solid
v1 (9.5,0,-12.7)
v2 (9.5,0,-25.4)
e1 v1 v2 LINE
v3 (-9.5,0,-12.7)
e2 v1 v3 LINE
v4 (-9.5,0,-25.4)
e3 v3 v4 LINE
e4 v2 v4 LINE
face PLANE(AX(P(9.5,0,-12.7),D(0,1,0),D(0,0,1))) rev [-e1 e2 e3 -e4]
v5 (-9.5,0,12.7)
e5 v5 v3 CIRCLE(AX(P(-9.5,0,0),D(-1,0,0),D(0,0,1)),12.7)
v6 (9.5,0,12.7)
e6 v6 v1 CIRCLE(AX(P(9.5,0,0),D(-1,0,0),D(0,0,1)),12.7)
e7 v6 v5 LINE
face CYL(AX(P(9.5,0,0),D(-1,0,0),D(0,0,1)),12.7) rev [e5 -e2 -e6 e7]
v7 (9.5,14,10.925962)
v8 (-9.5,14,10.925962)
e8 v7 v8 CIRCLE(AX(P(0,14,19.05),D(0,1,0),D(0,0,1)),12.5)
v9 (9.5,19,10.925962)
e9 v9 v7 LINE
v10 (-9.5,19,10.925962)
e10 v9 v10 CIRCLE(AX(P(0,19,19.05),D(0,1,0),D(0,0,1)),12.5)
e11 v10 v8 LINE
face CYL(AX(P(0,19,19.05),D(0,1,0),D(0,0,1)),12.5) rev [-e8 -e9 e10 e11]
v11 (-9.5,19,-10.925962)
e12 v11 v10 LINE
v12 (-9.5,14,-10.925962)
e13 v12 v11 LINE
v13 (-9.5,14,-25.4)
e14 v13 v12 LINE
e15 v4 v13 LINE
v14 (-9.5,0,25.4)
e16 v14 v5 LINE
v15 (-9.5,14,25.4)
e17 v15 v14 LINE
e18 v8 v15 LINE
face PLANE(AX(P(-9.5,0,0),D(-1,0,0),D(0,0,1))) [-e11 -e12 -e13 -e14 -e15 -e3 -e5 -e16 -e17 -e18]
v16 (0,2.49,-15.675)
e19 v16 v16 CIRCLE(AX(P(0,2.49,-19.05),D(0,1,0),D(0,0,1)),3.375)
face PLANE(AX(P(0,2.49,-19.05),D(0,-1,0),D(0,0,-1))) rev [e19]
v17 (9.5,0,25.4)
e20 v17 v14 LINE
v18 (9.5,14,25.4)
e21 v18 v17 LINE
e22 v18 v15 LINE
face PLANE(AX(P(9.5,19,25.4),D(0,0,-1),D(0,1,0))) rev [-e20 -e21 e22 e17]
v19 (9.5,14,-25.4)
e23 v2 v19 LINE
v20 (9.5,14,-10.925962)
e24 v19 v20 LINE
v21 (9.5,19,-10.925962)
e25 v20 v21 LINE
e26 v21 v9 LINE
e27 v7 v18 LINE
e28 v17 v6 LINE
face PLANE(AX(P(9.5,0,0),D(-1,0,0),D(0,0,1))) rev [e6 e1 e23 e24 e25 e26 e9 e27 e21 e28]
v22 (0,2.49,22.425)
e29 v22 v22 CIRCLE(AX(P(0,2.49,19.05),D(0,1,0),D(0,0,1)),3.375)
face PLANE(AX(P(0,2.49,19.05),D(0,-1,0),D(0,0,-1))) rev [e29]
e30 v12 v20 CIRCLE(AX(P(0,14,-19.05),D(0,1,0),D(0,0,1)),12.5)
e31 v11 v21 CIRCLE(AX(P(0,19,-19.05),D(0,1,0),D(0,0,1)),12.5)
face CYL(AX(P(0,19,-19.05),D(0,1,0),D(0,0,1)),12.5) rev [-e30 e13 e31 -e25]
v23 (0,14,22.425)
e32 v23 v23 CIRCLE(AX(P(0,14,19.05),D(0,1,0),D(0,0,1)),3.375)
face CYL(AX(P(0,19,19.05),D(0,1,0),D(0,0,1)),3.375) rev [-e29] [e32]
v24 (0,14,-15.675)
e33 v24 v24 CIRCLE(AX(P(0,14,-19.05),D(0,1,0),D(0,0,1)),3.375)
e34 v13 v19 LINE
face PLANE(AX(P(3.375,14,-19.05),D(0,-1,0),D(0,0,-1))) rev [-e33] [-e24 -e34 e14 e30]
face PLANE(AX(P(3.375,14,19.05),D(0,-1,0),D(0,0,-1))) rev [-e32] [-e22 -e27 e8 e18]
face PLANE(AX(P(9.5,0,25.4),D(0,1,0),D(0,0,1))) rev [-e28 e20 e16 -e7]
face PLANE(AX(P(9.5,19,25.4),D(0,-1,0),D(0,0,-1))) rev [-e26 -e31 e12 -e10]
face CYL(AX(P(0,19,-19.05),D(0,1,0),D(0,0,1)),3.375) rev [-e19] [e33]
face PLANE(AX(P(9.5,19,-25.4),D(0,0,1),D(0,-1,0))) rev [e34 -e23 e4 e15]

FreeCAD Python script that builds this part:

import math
import FreeCAD as App
import Part
import Sketcher
from FreeCAD import Vector
Q = App.Units.Quantity

doc = App.newDocument("Part")
body = doc.addObject("PartDesign::Body", "Body")

# Sketch on YZ plane
sketch1 = body.newObject("Sketcher::SketchObject", "Sketch")
sketch1.AttachmentSupport = (doc.getObject("YZ_Plane"), [""])
sketch1.MapMode = "FlatFace"
sketch1.addGeometry(Part.LineSegment(Vector(0, -13, 0), Vector(0, -25, 0)), False)
sketch1.addGeometry(Part.LineSegment(Vector(0, -25, 0), Vector(19, -25, 0)), False)
sketch1.addGeometry(Part.LineSegment(Vector(19, -25, 0), Vector(19, 25, 0)), False)
sketch1.addGeometry(Part.LineSegment(Vector(19, 25, 0), Vector(0, 25, 0)), False)
sketch1.addGeometry(Part.LineSegment(Vector(0, 25, 0), Vector(0, 13, 0)), False)
sketch1.addGeometry(Part.ArcOfCircle(Part.Circle(Vector(0, 0, 0), Vector(0, 0, 1), 13), math.radians(-90), math.radians(90)), False)
sketch1.addConstraint(Sketcher.Constraint("Coincident", 0, 2, 1, 1))
sketch1.addConstraint(Sketcher.Constraint("Coincident", 1, 2, 2, 1))
sketch1.addConstraint(Sketcher.Constraint("Coincident", 2, 2, 3, 1))
sketch1.addConstraint(Sketcher.Constraint("Coincident", 3, 2, 4, 1))
sketch1.addConstraint(Sketcher.Constraint("Coincident", 4, 2, 5, 2))
sketch1.addConstraint(Sketcher.Constraint("Coincident", 5, 1, 0, 1))
sketch1.addConstraint(Sketcher.Constraint("Vertical", 0))
sketch1.addConstraint(Sketcher.Constraint("Horizontal", 1))
sketch1.addConstraint(Sketcher.Constraint("Vertical", 2))
sketch1.addConstraint(Sketcher.Constraint("Horizontal", 3))
sketch1.addConstraint(Sketcher.Constraint("Vertical", 4))
sketch1.addConstraint(Sketcher.Constraint("Coincident", 5, 3, -1, 1))
sketch1.addConstraint(Sketcher.Constraint("Symmetric", 0, 2, 3, 2, -1, 1))
sketch1.addConstraint(Sketcher.Constraint("PointOnObject", 0, 2, -2))
sketch1.addConstraint(Sketcher.Constraint("Radius", 5, Q("0.5 in")))
sketch1.addConstraint(Sketcher.Constraint("DistanceY", 2, 1, 2, 2, Q("2 in")))
sketch1.addConstraint(Sketcher.Constraint("DistanceX", 1, 1, 1, 2, 19.0))
pad1 = body.newObject("PartDesign::Pad", "Pad")
pad1.Profile = sketch1
pad1.Length = 19
pad1.Midplane = True

# Sketch on XZ plane
sketch2 = body.newObject("Sketcher::SketchObject", "Sketch001")
sketch2.AttachmentSupport = (doc.getObject("XZ_Plane"), [""])
sketch2.MapMode = "FlatFace"
sketch2.AttachmentOffset = App.Placement(Vector(0, 0, -19), App.Rotation())
sketch2.addGeometry(Part.Circle(Vector(0, -19.1, 0), Vector(0, 0, 1), 3.4), False)
sketch2.addGeometry(Part.Circle(Vector(0, 19.1, 0), Vector(0, 0, 1), 3.4), False)
sketch2.addConstraint(Sketcher.Constraint("Equal", 0, 1))
sketch2.addConstraint(Sketcher.Constraint("Symmetric", 0, 3, 1, 3, -1, 1))
sketch2.addConstraint(Sketcher.Constraint("PointOnObject", 0, 3, -2))
sketch2.addConstraint(Sketcher.Constraint("DistanceY", 0, 3, 1, 3, Q("1.5 in")))
sketch2.addConstraint(Sketcher.Constraint("Diameter", 0, 6.75))
doc.recompute()
hole = body.newObject("PartDesign::Hole", "Hole")
hole.Profile = sketch2
hole.ThreadType = "None"
hole.Diameter = 6.75
hole.DepthType = "Dimension"
hole.Depth = Q("0.65 in")
hole.DrillPoint = "Flat"
hole.HoleCutType = "Counterbore"
hole.HoleCutDiameter = 25
hole.HoleCutDepth = 5
hole.Reversed = True

doc.recompute()
